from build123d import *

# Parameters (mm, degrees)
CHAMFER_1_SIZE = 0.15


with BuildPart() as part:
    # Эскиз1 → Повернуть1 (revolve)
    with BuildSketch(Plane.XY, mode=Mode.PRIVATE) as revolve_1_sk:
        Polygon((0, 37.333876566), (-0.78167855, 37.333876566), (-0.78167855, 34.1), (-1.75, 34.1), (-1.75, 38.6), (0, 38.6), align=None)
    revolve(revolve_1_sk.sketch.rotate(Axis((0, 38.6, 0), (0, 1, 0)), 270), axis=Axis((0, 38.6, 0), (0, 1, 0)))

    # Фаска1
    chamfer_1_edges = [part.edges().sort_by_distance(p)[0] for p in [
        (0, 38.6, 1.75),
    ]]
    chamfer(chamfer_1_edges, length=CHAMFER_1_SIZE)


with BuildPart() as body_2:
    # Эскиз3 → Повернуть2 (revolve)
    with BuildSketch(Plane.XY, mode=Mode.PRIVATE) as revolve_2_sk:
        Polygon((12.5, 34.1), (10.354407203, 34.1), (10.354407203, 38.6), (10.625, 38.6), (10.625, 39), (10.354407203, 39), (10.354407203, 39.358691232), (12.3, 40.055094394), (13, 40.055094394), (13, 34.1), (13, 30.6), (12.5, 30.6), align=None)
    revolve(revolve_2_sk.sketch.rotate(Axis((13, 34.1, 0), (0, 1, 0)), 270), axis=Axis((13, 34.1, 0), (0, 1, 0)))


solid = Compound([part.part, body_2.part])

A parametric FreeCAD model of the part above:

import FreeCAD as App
import Part
import Sketcher
Q = App.Units.Quantity


def edges_at(feature, points):
    """Names of the edges that pass closest to the given points."""
    edges = feature.Shape.Edges
    near = lambda p: min(range(len(edges)), key=lambda i: edges[i].distToShape(Part.Vertex(*p))[0])
    return sorted({f"Edge{near(p) + 1}" for p in points})


def add_polygon(sketch, points):
    """Adds a closed chain of lines whose ends are joined by coincident constraints."""
    first, n = sketch.GeometryCount, len(points)
    for a, b in zip(points, points[1:] + points[:1]):
        sketch.addGeometry(Part.LineSegment(App.Vector(*a, 0), App.Vector(*b, 0)), False)
    for i in range(n):
        sketch.addConstraint(Sketcher.Constraint("Coincident", first + i, 2, first + (i + 1) % n, 1))

doc = App.newDocument("Part")
body = doc.addObject("PartDesign::Body", "Body")

sketch1 = body.newObject("Sketcher::SketchObject", "Sketch")
sketch1.AttachmentSupport = (doc.getObject("XY_Plane"), [""])
sketch1.MapMode = "FlatFace"
add_polygon(sketch1, [(-0.781679, 37.333877), (0, 37.333877), (0, 38.6), (-1.75, 38.6), (-1.75, 34.1), (-0.781679, 34.1)])
sketch1.addConstraint(Sketcher.Constraint("Horizontal", 0))
sketch1.addConstraint(Sketcher.Constraint("Vertical", 1))
sketch1.addConstraint(Sketcher.Constraint("Horizontal", 2))
sketch1.addConstraint(Sketcher.Constraint("Vertical", 3))
sketch1.addConstraint(Sketcher.Constraint("Horizontal", 4))
sketch1.addConstraint(Sketcher.Constraint("Vertical", 5))
sketch1.addConstraint(Sketcher.Constraint("PointOnObject", 0, 2, -2))
sketch1.addConstraint(Sketcher.Constraint("DistanceY", 3, 2, 3, 1, Q("4.5 mm")))
sketch1.addConstraint(Sketcher.Constraint("DistanceX", 2, 2, 2, 1, Q("1.75 mm")))
sketch1.addConstraint(Sketcher.Constraint("DistanceY", -1, 1, 1, 2, Q("38.6 mm")))
sketch1.addConstraint(Sketcher.Constraint("DistanceX", 0, 1, 0, 2, Q("0.781679 mm")))
sketch1.addConstraint(Sketcher.Constraint("DistanceY", 1, 1, 1, 2, Q("1.266123 mm")))
revolution = body.newObject("PartDesign::Revolution", "Revolution")
revolution.Profile = sketch1
revolution.ReferenceAxis = (sketch1, ["V_Axis"])
revolution.Angle = 360
doc.recompute()

chamfer = body.newObject("PartDesign::Chamfer", "Chamfer")
chamfer.Base = (revolution, edges_at(revolution, [(0, 38.6, 1.75)]))
chamfer.Size = 0.15
body2 = doc.addObject("PartDesign::Body", "Body001")

sketch2 = body2.newObject("Sketcher::SketchObject", "Sketch001")
sketch2.AttachmentSupport = (doc.getObject("XY_Plane001"), [""])
sketch2.MapMode = "FlatFace"
add_polygon(sketch2, [(10.354407, 34.1), (12.5, 34.1), (12.5, 30.6), (13, 30.6), (13, 40.055094), (12.3, 40.055094), (10.354407, 39.358691), (10.354407, 39), (10.625, 39), (10.625, 38.6), (10.354407, 38.6)])
sketch2.addGeometry(Part.LineSegment(App.Vector(13, 30.6, 0), App.Vector(13, 40.055094, 0)), True)
sketch2.addConstraint(Sketcher.Constraint("Horizontal", 0))
sketch2.addConstraint(Sketcher.Constraint("Vertical", 1))
sketch2.addConstraint(Sketcher.Constraint("Horizontal", 2))
sketch2.addConstraint(Sketcher.Constraint("Vertical", 3))
sketch2.addConstraint(Sketcher.Constraint("Horizontal", 4))
sketch2.addConstraint(Sketcher.Constraint("Vertical", 6))
sketch2.addConstraint(Sketcher.Constraint("Horizontal", 7))
sketch2.addConstraint(Sketcher.Constraint("Vertical", 8))
sketch2.addConstraint(Sketcher.Constraint("Horizontal", 9))
sketch2.addConstraint(Sketcher.Constraint("Vertical", 10))
sketch2.addConstraint(Sketcher.Constraint("Vertical", 11))
sketch2.addConstraint(Sketcher.Constraint("Coincident", 11, 1, 2, 2))
sketch2.addConstraint(Sketcher.Constraint("Horizontal", 4, 2, 11, 2))
sketch2.addConstraint(Sketcher.Constraint("Vertical", 6, 2, 9, 2))
sketch2.addConstraint(Sketcher.Constraint("DistanceX", 2, 1, 2, 2, Q("0.5 mm")))
sketch2.addConstraint(Sketcher.Constraint("DistanceX", 4, 2, 4, 1, Q("0.7 mm")))
sketch2.addConstraint(Sketcher.Constraint("DistanceY", 1, 2, 1, 1, Q("3.5 mm")))
sketch2.addConstraint(Sketcher.Constraint("DistanceY", 8, 2, 8, 1, Q("0.4 mm")))
sketch2.addConstraint(Sketcher.Constraint("DistanceY", 10, 2, 10, 1, Q("4.5 mm")))
sketch2.addConstraint(Sketcher.Constraint("DistanceX", -1, 1, 2, 2, Q("13 mm")))
sketch2.addConstraint(Sketcher.Constraint("DistanceY", -1, 1, 6, 2, Q("39 mm")))
sketch2.addConstraint(Sketcher.Constraint("DistanceX", -1, 1, 7, 2, Q("10.625 mm")))
sketch2.addConstraint(Sketcher.Constraint("DistanceY", 6, 2, 6, 1, Q("0.358691 mm")))
sketch2.addConstraint(Sketcher.Constraint("DistanceX", 0, 1, 0, 2, Q("2.145593 mm")))
sketch2.addConstraint(Sketcher.Constraint("DistanceY", 3, 1, 3, 2, Q("9.455094 mm")))
revolution2 = body2.newObject("PartDesign::Revolution", "Revolution001")
revolution2.Profile = sketch2
revolution2.ReferenceAxis = (sketch2, ["Axis0"])
revolution2.Angle = 360

doc.recompute()
